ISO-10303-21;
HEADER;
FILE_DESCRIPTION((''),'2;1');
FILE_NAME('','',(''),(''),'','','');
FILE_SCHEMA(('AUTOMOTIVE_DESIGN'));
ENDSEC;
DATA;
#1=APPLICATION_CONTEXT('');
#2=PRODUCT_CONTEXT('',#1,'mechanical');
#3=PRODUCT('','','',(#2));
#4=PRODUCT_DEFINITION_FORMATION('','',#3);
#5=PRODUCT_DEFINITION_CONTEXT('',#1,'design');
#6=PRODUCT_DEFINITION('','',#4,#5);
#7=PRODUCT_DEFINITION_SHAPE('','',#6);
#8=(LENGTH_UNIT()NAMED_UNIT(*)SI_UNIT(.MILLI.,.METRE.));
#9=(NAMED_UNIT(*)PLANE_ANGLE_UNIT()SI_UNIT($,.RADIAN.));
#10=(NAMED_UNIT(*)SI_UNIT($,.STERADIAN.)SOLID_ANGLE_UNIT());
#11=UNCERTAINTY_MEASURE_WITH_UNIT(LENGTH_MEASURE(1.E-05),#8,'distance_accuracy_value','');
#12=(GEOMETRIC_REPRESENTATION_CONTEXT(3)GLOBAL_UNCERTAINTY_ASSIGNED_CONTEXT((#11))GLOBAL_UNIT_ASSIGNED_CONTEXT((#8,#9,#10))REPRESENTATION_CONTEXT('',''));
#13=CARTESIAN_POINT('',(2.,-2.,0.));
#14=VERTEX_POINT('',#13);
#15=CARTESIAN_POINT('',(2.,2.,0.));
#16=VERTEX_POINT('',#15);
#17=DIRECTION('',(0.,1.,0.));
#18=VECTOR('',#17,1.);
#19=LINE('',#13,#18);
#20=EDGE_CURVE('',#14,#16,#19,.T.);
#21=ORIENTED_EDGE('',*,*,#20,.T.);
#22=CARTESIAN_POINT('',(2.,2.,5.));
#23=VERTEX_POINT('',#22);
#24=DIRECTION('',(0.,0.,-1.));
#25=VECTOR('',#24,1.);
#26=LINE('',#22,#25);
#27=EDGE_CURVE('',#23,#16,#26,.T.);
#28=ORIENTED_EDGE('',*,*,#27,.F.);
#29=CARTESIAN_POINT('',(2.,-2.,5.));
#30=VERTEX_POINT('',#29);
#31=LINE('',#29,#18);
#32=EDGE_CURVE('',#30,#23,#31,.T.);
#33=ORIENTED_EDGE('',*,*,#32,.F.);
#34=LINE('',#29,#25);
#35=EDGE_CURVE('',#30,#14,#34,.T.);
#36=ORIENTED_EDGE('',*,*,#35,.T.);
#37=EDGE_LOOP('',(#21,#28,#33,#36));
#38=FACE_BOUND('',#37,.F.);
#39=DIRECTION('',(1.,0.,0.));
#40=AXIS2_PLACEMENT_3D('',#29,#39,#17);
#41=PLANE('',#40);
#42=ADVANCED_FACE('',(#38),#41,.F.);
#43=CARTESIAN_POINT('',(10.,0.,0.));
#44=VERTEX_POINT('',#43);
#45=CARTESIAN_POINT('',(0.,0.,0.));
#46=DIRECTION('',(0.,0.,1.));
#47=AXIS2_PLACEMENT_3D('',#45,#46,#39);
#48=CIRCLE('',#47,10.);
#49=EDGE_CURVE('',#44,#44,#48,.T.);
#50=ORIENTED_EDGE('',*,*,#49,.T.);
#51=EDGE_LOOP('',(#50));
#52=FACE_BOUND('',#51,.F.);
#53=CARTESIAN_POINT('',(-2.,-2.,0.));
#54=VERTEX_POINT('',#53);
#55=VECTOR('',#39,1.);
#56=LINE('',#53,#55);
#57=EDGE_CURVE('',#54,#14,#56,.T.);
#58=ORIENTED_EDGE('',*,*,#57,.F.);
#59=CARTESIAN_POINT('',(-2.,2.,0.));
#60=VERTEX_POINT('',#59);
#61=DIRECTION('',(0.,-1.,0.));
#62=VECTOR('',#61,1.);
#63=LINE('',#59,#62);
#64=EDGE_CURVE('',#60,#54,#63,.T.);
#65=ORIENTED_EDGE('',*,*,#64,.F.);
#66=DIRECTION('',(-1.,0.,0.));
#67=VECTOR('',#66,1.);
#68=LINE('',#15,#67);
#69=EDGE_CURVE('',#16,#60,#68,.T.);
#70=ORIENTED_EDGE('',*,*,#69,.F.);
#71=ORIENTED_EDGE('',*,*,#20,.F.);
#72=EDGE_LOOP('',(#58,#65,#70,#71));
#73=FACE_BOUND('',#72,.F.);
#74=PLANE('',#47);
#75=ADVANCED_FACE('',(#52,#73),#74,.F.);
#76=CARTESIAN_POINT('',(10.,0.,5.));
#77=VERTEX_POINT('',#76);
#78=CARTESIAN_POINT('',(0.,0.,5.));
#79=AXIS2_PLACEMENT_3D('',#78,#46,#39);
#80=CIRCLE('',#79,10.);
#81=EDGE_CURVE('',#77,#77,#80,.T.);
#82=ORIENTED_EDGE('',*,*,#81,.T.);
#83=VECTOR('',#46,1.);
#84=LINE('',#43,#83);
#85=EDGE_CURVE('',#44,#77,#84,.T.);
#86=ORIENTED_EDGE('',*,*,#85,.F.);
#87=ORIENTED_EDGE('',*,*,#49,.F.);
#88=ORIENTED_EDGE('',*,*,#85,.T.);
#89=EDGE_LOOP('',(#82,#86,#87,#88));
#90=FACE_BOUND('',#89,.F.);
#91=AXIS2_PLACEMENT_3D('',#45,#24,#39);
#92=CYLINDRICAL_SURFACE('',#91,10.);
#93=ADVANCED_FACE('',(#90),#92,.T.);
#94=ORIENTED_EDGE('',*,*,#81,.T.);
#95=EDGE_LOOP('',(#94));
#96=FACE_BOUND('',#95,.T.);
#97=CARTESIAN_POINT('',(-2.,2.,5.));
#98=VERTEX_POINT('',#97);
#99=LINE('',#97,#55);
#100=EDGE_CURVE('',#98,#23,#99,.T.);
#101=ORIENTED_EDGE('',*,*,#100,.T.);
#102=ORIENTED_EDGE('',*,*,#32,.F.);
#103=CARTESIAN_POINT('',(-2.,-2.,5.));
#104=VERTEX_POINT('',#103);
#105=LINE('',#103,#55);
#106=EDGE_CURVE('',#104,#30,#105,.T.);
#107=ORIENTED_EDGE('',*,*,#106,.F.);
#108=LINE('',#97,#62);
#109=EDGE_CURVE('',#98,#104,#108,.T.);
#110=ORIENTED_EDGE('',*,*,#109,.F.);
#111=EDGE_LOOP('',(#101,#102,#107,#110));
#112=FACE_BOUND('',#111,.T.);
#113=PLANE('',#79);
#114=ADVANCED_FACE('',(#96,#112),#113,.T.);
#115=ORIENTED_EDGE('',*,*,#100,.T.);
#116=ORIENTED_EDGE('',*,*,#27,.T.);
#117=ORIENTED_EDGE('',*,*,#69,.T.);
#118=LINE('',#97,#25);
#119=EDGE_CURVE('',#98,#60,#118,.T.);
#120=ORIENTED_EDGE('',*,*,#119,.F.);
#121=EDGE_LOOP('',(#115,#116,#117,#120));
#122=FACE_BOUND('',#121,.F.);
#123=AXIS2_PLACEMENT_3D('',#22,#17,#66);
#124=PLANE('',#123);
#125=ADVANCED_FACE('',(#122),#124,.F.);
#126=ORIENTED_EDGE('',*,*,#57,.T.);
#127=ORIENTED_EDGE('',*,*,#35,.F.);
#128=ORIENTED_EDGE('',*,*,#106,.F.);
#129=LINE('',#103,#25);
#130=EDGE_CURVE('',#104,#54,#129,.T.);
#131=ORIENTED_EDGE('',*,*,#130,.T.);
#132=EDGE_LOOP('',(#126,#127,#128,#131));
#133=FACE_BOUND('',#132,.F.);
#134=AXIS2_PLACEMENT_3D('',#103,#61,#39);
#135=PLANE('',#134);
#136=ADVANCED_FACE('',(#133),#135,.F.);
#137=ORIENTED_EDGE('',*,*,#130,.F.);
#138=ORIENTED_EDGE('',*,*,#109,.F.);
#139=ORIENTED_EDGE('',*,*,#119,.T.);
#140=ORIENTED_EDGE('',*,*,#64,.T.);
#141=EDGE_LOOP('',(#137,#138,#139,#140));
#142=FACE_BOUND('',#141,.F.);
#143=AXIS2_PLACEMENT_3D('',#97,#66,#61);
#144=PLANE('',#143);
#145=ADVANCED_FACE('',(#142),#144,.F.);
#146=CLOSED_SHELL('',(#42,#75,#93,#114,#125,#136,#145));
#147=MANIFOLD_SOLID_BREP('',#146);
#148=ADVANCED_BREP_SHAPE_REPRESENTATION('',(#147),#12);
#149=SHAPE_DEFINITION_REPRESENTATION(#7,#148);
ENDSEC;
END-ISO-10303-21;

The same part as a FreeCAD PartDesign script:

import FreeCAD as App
import Part
import Sketcher


def add_polygon(sketch, points):
    """Adds a closed chain of lines whose ends are joined by coincident constraints."""
    first, n = sketch.GeometryCount, len(points)
    for a, b in zip(points, points[1:] + points[:1]):
        sketch.addGeometry(Part.LineSegment(App.Vector(*a, 0), App.Vector(*b, 0)), False)
    for i in range(n):
        sketch.addConstraint(Sketcher.Constraint("Coincident", first + i, 2, first + (i + 1) % n, 1))

doc = App.newDocument("Part")
body = doc.addObject("PartDesign::Body", "Body")

# Sketch on XY plane
sketch1 = body.newObject("Sketcher::SketchObject", "Sketch")
sketch1.AttachmentSupport = (doc.getObject("XY_Plane"), [""])
sketch1.MapMode = "FlatFace"
sketch1.addGeometry(Part.Circle(App.Vector(0, 0, 0), App.Vector(0, 0, 1), 10), False)
sketch1.addConstraint([
    Sketcher.Constraint("Coincident", 0, 3, -1, 1),
    Sketcher.Constraint("Diameter", 0, 20.0),
])
pad1 = body.newObject("PartDesign::Pad", "Pad")
pad1.Profile = sketch1
pad1.Length = 5

# Sketch on XY plane
sketch2 = body.newObject("Sketcher::SketchObject", "Sketch001")
sketch2.AttachmentSupport = (doc.getObject("XY_Plane"), [""])
sketch2.MapMode = "FlatFace"
sketch2.AttachmentOffset = App.Placement(App.Vector(0, 0, 5), App.Rotation())
add_polygon(sketch2, [(2, 2), (-2, 2), (-2, -2), (2, -2)])  # lines 0-3
sketch2.addConstraint([
    Sketcher.Constraint("Horizontal", 0),
    Sketcher.Constraint("Vertical", 1),
    Sketcher.Constraint("Horizontal", 2),
    Sketcher.Constraint("Vertical", 3),
    Sketcher.Constraint("Symmetric", 0, 2, 2, 2, -1, 1),
    Sketcher.Constraint("Equal", 2, 1),
    Sketcher.Constraint("DistanceX", 0, 2, 0, 1, 4.0),
])
pocket1 = body.newObject("PartDesign::Pocket", "Pocket")
pocket1.Profile = sketch2
pocket1.Length = 5

doc.recompute()
